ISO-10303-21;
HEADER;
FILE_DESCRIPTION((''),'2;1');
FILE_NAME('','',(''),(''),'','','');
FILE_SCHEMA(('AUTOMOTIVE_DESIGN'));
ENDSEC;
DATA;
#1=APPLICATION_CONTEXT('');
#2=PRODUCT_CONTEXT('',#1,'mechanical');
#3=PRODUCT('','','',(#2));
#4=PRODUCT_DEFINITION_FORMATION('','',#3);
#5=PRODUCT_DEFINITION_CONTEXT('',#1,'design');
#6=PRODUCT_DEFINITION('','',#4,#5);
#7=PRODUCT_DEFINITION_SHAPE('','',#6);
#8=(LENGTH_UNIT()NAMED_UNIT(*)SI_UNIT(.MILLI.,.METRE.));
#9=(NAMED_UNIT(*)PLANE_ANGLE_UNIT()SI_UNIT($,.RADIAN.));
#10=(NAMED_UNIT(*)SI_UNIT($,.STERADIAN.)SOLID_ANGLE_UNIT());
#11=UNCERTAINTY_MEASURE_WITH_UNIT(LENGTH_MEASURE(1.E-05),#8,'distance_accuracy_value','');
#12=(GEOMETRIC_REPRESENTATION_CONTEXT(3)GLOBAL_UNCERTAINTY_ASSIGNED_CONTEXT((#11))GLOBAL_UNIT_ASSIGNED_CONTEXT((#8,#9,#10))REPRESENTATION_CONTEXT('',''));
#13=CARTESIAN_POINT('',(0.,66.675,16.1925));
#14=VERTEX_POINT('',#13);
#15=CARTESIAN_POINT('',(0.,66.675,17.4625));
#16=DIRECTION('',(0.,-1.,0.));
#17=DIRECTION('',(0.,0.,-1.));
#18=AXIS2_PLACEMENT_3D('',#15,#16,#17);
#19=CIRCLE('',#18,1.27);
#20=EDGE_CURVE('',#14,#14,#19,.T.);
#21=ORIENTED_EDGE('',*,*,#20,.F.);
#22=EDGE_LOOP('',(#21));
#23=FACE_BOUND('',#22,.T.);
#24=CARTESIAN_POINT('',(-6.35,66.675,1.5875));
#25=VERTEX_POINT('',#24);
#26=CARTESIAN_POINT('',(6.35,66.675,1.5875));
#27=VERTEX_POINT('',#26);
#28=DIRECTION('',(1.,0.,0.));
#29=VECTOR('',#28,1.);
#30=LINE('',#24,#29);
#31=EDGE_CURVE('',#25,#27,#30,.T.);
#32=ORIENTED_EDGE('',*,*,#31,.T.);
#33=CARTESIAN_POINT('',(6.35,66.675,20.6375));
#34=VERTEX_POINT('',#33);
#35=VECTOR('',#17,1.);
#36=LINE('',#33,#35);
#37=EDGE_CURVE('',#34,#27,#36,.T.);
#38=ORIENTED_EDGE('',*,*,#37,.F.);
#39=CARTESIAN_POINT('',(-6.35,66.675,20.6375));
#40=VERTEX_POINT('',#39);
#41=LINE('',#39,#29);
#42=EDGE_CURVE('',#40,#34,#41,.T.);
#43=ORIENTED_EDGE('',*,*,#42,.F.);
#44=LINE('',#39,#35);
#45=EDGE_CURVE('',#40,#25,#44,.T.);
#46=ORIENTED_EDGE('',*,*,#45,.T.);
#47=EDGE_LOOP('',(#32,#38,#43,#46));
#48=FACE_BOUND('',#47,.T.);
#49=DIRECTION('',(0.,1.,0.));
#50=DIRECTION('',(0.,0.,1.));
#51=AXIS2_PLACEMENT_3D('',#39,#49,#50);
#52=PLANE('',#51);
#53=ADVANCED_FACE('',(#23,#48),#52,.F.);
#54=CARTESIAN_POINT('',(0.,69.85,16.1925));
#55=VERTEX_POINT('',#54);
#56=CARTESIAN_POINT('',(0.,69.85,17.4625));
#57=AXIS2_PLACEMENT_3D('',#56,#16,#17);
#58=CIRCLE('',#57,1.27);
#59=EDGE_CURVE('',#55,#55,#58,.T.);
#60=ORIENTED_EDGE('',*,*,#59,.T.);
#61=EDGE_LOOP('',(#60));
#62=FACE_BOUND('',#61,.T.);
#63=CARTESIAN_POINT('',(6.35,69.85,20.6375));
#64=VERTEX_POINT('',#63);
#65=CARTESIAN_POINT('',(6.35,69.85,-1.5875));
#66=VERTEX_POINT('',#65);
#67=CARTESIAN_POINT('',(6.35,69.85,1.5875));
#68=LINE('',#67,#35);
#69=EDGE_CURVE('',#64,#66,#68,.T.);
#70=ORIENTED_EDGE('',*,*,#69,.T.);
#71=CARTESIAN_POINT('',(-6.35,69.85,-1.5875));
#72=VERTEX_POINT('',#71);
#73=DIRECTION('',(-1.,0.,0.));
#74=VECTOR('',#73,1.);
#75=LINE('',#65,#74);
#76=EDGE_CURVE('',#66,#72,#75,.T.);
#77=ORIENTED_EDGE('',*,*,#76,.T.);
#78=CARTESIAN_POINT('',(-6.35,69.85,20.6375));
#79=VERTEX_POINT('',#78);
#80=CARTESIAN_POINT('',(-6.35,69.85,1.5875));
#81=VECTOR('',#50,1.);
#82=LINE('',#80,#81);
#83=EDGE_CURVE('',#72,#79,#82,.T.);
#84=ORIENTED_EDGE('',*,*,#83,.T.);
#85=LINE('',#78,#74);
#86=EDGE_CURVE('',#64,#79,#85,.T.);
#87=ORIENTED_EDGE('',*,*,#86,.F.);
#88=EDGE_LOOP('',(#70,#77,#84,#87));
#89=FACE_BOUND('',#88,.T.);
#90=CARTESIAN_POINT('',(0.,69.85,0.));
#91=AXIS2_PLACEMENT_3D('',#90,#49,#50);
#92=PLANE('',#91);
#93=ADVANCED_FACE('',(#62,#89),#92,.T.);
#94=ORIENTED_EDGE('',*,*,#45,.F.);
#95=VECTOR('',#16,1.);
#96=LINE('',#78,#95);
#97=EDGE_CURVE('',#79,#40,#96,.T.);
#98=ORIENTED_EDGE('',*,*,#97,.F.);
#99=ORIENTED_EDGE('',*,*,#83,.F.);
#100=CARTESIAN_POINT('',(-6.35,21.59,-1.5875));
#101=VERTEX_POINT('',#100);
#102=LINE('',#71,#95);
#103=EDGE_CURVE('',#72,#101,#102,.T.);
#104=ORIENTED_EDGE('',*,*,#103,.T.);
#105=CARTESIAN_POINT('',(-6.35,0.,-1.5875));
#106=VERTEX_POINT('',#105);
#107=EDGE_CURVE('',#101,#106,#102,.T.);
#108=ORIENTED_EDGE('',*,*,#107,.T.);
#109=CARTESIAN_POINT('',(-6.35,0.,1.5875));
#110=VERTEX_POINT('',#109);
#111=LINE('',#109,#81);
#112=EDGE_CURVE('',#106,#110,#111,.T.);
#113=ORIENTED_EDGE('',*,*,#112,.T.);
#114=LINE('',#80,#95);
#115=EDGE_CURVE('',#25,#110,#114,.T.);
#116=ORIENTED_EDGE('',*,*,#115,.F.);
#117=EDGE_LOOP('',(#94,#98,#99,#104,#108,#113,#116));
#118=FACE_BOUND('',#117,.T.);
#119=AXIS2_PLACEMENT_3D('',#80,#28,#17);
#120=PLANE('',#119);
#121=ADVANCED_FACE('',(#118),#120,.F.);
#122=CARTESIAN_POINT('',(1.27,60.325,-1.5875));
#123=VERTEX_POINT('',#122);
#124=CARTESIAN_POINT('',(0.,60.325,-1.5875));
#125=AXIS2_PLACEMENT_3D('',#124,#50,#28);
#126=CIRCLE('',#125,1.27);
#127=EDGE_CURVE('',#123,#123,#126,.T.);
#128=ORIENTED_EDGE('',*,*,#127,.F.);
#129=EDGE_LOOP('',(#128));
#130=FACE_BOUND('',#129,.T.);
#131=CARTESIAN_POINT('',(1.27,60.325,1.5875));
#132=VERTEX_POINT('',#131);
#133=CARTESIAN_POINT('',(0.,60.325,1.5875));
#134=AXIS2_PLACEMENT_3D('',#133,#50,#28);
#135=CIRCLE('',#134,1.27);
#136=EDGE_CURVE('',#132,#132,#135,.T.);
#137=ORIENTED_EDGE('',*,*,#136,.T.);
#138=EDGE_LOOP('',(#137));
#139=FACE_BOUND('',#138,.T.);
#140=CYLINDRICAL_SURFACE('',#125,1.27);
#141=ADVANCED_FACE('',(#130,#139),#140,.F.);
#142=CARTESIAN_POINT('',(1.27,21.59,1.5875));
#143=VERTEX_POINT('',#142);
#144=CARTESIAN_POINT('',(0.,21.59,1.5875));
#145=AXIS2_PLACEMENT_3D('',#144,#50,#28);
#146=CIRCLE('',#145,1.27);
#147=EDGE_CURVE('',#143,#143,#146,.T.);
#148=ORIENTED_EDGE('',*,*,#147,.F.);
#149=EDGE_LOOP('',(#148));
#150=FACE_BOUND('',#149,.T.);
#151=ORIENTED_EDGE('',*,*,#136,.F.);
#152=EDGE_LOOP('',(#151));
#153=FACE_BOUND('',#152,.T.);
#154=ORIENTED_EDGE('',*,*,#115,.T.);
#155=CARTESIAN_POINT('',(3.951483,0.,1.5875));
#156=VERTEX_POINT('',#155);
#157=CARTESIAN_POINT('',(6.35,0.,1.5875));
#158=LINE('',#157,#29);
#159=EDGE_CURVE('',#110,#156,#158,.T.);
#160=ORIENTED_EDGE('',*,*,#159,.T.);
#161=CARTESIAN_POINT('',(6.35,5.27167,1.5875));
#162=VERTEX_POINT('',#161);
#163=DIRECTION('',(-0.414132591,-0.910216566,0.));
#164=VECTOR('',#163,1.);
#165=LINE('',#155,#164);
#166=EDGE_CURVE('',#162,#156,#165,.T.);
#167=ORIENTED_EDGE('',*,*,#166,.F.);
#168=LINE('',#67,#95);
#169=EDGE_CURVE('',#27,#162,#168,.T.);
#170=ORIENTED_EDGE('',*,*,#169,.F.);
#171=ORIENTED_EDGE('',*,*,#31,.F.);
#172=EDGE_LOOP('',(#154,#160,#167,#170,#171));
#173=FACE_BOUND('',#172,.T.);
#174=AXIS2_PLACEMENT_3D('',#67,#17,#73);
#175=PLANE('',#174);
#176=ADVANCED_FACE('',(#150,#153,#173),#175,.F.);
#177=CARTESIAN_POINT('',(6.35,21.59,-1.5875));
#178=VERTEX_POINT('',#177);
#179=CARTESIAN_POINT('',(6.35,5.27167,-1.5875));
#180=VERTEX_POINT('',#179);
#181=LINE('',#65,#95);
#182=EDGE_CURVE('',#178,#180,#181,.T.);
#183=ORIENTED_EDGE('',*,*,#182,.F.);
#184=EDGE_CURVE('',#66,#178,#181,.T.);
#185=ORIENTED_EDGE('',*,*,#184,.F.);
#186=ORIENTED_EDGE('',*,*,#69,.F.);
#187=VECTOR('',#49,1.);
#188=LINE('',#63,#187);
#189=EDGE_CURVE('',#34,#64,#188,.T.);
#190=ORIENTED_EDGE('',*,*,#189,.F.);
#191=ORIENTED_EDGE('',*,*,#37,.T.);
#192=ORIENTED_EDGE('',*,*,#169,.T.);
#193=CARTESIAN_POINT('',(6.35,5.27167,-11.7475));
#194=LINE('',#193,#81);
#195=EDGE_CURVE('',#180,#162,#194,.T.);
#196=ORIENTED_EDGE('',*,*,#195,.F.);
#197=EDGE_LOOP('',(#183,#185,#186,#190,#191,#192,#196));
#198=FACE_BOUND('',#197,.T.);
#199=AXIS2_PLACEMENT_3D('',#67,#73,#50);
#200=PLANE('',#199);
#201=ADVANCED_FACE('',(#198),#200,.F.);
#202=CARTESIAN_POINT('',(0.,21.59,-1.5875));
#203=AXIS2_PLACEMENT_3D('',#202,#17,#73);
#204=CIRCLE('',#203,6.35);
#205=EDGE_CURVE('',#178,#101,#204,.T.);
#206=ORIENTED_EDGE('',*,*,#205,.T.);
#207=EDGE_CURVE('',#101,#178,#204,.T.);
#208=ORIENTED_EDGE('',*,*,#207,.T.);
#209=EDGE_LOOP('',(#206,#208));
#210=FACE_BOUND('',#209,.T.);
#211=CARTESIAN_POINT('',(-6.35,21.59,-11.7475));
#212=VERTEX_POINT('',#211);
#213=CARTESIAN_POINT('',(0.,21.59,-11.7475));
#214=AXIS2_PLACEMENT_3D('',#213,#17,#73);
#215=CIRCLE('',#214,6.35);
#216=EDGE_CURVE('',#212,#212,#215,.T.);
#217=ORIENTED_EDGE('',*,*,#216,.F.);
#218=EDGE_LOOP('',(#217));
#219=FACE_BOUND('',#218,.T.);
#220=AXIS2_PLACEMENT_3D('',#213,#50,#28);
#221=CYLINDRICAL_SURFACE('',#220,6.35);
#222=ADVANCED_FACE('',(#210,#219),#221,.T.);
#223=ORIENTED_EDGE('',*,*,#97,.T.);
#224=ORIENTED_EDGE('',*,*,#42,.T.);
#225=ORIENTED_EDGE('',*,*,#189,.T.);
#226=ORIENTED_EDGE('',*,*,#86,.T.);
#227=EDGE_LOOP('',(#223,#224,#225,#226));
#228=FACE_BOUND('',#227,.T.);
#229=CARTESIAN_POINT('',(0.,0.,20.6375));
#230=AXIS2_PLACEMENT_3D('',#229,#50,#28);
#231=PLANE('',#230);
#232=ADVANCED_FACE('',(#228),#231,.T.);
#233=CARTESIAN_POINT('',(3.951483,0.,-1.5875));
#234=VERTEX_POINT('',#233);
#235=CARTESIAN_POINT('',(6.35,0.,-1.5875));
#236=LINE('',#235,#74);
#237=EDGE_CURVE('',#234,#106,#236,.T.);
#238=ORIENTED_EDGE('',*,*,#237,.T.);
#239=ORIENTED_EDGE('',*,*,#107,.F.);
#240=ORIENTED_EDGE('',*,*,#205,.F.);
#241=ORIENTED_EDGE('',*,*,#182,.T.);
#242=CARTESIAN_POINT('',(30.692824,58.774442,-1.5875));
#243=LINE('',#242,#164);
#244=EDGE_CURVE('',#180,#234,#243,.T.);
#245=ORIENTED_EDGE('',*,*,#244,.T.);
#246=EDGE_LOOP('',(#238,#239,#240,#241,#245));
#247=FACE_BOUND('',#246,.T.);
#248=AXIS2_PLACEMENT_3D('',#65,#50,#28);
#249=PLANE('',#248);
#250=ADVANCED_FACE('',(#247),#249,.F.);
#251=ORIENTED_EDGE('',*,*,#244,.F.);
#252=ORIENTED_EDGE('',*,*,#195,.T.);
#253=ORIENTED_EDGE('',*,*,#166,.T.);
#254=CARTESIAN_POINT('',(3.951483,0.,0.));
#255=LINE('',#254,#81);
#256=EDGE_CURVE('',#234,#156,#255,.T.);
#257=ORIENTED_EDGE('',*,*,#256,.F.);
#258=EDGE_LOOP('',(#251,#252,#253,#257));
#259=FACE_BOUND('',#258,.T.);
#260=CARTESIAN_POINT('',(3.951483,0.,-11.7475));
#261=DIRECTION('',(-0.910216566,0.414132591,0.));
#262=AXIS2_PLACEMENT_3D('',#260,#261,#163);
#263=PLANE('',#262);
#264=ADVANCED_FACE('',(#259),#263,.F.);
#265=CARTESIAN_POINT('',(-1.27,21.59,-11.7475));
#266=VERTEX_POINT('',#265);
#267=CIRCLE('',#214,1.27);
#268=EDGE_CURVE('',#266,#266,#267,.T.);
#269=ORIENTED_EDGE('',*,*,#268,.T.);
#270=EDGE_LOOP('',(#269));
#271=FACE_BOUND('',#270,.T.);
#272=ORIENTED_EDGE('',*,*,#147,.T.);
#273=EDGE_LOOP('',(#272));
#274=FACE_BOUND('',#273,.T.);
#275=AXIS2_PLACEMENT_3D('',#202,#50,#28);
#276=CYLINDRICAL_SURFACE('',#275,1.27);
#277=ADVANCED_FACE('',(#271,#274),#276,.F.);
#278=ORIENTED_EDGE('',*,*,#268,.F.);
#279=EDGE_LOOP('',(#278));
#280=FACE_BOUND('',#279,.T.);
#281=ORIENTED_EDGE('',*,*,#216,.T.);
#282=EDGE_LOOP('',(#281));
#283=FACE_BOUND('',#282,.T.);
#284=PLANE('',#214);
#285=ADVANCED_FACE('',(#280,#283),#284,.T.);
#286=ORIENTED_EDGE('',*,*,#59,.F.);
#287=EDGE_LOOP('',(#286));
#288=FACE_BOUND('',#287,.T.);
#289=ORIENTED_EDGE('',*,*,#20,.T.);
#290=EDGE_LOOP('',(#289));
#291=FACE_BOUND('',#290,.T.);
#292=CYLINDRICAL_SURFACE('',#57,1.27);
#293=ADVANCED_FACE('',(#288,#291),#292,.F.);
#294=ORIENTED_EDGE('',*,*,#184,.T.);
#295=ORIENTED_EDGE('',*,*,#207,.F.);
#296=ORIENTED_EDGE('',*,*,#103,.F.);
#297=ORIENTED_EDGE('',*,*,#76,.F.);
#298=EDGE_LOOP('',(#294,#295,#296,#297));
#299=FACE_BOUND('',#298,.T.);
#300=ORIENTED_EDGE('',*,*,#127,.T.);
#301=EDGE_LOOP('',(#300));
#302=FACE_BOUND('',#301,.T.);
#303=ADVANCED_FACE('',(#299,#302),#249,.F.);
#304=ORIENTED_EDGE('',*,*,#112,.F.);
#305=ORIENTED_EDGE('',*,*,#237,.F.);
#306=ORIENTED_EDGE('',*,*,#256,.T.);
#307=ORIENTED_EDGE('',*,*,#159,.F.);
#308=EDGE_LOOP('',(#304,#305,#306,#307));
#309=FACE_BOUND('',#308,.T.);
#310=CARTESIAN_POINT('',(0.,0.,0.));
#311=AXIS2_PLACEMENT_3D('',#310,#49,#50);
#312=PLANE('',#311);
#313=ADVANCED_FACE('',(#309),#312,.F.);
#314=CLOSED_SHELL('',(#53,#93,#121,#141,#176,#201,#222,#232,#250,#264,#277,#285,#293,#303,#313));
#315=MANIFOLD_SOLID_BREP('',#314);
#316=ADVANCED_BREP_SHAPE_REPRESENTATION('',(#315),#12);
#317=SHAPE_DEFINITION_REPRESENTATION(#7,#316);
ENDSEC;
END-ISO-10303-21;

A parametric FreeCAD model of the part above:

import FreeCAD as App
import Part
import Sketcher
from FreeCAD import Vector
Q = App.Units.Quantity

doc = App.newDocument("Part")
body = doc.addObject("PartDesign::Body", "Body")

sketch1 = body.newObject("Sketcher::SketchObject", "Sketch")
sketch1.AttachmentSupport = (doc.getObject("XZ_Plane"), [""])
sketch1.MapMode = "FlatFace"
sketch1.addGeometry([
    Part.LineSegment(Vector(-6.35, -1.5875, 0), Vector(-6.35, 1.5875, 0)),
    Part.LineSegment(Vector(-6.35, 1.5875, 0), Vector(6.35, 1.5875, 0)),
    Part.LineSegment(Vector(6.35, 1.5875, 0), Vector(6.35, -1.5875, 0)),
    Part.LineSegment(Vector(6.35, -1.5875, 0), Vector(-6.35, -1.5875, 0)),
], False)
sketch1.addConstraint([
    Sketcher.Constraint("Coincident", 0, 2, 1, 1),
    Sketcher.Constraint("Coincident", 1, 2, 2, 1),
    Sketcher.Constraint("Coincident", 2, 2, 3, 1),
    Sketcher.Constraint("Coincident", 3, 2, 0, 1),
    Sketcher.Constraint("Vertical", 0),
    Sketcher.Constraint("Horizontal", 1),
    Sketcher.Constraint("Vertical", 2),
    Sketcher.Constraint("Horizontal", 3),
    Sketcher.Constraint("Symmetric", 0, 2, 2, 2, -1, 1),
    Sketcher.Constraint("DistanceX", 1, 1, 1, 2, Q("0.5 in")),
    Sketcher.Constraint("DistanceY", 0, 1, 0, 2, Q("0.125 in")),
])
pad1 = body.newObject("PartDesign::Pad", "Pad")
pad1.Profile = sketch1
pad1.Length = Q("2.75 in")
pad1.Reversed = True

sketch2 = body.newObject("Sketcher::SketchObject", "Sketch001")
sketch2.AttachmentSupport = (doc.getObject("XY_Plane"), [""])
sketch2.MapMode = "FlatFace"
sketch2.AttachmentOffset = App.Placement(Vector(0, 0, 0.0625 * 25.4), App.Rotation())
sketch2.addGeometry([
    Part.LineSegment(Vector(-6.35, 69.85, 0), Vector(-6.35, 66.675, 0)),
    Part.LineSegment(Vector(-6.35, 66.675, 0), Vector(6.35, 66.675, 0)),
    Part.LineSegment(Vector(6.35, 66.675, 0), Vector(6.35, 69.85, 0)),
    Part.LineSegment(Vector(6.35, 69.85, 0), Vector(-6.35, 69.85, 0)),
], False)
sketch2.addConstraint([
    Sketcher.Constraint("Coincident", 0, 2, 1, 1),
    Sketcher.Constraint("Coincident", 1, 2, 2, 1),
    Sketcher.Constraint("Coincident", 2, 2, 3, 1),
    Sketcher.Constraint("Coincident", 3, 2, 0, 1),
    Sketcher.Constraint("Vertical", 0),
    Sketcher.Constraint("Horizontal", 1),
    Sketcher.Constraint("Vertical", 2),
    Sketcher.Constraint("Horizontal", 3),
    Sketcher.Constraint("DistanceX", 1, 1, 1, 2, Q("0.5 in")),
    Sketcher.Constraint("DistanceY", 0, 2, 0, 1, Q("0.125 in")),
    Sketcher.Constraint("DistanceX", 0, 2, -1, 1, Q("0.25 in")),
    Sketcher.Constraint("DistanceY", -1, 1, 2, 2, Q("2.75 in")),
])
pad2 = body.newObject("PartDesign::Pad", "Pad001")
pad2.Profile = sketch2
pad2.Length = Q("0.75 in")

sketch3 = body.newObject("Sketcher::SketchObject", "Sketch002")
sketch3.AttachmentSupport = (doc.getObject("XZ_Plane"), [""])
sketch3.MapMode = "FlatFace"
sketch3.AttachmentOffset = App.Placement(Vector(0, 0, -2.625 * 25.4), App.Rotation())
sketch3.addGeometry(Part.Circle(Vector(0, 17.4625, 0), Vector(0, 0, 1), 1.27), False)
sketch3.addConstraint([
    Sketcher.Constraint("PointOnObject", 0, 3, -2),
    Sketcher.Constraint("Diameter", 0, Q("0.1 in")),
    Sketcher.Constraint("DistanceY", -1, 1, 0, 3, Q("0.6875 in")),
])
pocket1 = body.newObject("PartDesign::Pocket", "Pocket")
pocket1.Profile = sketch3
pocket1.Type = "ThroughAll"

sketch4 = body.newObject("Sketcher::SketchObject", "Sketch003")
sketch4.AttachmentSupport = (doc.getObject("XY_Plane"), [""])
sketch4.MapMode = "FlatFace"
sketch4.AttachmentOffset = App.Placement(Vector(0, 0, 0.0625 * 25.4), App.Rotation())
sketch4.addGeometry([
    Part.Circle(Vector(0, 21.59, 0), Vector(0, 0, 1), 1.27),
    Part.Circle(Vector(0, 60.325, 0), Vector(0, 0, 1), 1.27),
], False)
sketch4.addConstraint([
    Sketcher.Constraint("Equal", 0, 1),
    Sketcher.Constraint("PointOnObject", 0, 3, -2),
    Sketcher.Constraint("PointOnObject", 1, 3, -2),
    Sketcher.Constraint("Diameter", 0, Q("0.1 in")),
    Sketcher.Constraint("DistanceY", -1, 1, 0, 3, Q("0.85 in")),
    Sketcher.Constraint("DistanceY", -1, 1, 1, 3, Q("2.375 in")),
])
pocket2 = body.newObject("PartDesign::Pocket", "Pocket001")
pocket2.Profile = sketch4
pocket2.Type = "ThroughAll"

sketch5 = body.newObject("Sketcher::SketchObject", "Sketch004")
sketch5.AttachmentSupport = (doc.getObject("XY_Plane"), [""])
sketch5.MapMode = "FlatFace"
sketch5.AttachmentOffset = App.Placement(Vector(0, 0, -0.0625 * 25.4), App.Rotation())
sketch5.addGeometry([
    Part.Circle(Vector(0, 21.59, 0), Vector(0, 0, 1), 6.35),
    Part.Circle(Vector(0, 21.59, 0), Vector(0, 0, 1), 1.27),
], False)
sketch5.addConstraint([
    Sketcher.Constraint("Coincident", 1, 3, 0, 3),
    Sketcher.Constraint("PointOnObject", 0, 3, -2),
    Sketcher.Constraint("Diameter", 0, Q("0.5 in")),
    Sketcher.Constraint("Diameter", 1, Q("0.1 in")),
    Sketcher.Constraint("DistanceY", -1, 1, 0, 3, Q("0.85 in")),
])
pad3 = body.newObject("PartDesign::Pad", "Pad002")
pad3.Profile = sketch5
pad3.Length = Q("0.4 in")
pad3.Reversed = True

sketch6 = body.newObject("Sketcher::SketchObject", "Sketch005")
sketch6.AttachmentSupport = (doc.getObject("XY_Plane"), [""])
sketch6.MapMode = "FlatFace"
sketch6.AttachmentOffset = App.Placement(Vector(0, 0, 0.0625 * 25.4), App.Rotation())
sketch6.addGeometry([
    Part.LineSegment(Vector(6.35, 5.27167, 0), Vector(3.951483, 0, 0)),
    Part.LineSegment(Vector(3.951483, 0, 0), Vector(6.35, 0, 0)),
    Part.LineSegment(Vector(6.35, 0, 0), Vector(6.35, 5.27167, 0)),
], False)
sketch6.addConstraint([
    Sketcher.Constraint("Coincident", 0, 2, 1, 1),
    Sketcher.Constraint("Coincident", 1, 2, 2, 1),
    Sketcher.Constraint("Coincident", 2, 2, 0, 1),
    Sketcher.Constraint("Horizontal", 1),
    Sketcher.Constraint("Vertical", 2),
    Sketcher.Constraint("PointOnObject", 0, 2, -1),
    Sketcher.Constraint("DistanceX", -1, 1, 1, 2, Q("0.25 in")),
    Sketcher.Constraint("DistanceY", 2, 1, 2, 2, 5.27167),
    Sketcher.Constraint("DistanceX", 1, 1, 1, 2, 2.398517),
])
pocket3 = body.newObject("PartDesign::Pocket", "Pocket002")
pocket3.Profile = sketch6
pocket3.Type = "ThroughAll"

doc.recompute()
